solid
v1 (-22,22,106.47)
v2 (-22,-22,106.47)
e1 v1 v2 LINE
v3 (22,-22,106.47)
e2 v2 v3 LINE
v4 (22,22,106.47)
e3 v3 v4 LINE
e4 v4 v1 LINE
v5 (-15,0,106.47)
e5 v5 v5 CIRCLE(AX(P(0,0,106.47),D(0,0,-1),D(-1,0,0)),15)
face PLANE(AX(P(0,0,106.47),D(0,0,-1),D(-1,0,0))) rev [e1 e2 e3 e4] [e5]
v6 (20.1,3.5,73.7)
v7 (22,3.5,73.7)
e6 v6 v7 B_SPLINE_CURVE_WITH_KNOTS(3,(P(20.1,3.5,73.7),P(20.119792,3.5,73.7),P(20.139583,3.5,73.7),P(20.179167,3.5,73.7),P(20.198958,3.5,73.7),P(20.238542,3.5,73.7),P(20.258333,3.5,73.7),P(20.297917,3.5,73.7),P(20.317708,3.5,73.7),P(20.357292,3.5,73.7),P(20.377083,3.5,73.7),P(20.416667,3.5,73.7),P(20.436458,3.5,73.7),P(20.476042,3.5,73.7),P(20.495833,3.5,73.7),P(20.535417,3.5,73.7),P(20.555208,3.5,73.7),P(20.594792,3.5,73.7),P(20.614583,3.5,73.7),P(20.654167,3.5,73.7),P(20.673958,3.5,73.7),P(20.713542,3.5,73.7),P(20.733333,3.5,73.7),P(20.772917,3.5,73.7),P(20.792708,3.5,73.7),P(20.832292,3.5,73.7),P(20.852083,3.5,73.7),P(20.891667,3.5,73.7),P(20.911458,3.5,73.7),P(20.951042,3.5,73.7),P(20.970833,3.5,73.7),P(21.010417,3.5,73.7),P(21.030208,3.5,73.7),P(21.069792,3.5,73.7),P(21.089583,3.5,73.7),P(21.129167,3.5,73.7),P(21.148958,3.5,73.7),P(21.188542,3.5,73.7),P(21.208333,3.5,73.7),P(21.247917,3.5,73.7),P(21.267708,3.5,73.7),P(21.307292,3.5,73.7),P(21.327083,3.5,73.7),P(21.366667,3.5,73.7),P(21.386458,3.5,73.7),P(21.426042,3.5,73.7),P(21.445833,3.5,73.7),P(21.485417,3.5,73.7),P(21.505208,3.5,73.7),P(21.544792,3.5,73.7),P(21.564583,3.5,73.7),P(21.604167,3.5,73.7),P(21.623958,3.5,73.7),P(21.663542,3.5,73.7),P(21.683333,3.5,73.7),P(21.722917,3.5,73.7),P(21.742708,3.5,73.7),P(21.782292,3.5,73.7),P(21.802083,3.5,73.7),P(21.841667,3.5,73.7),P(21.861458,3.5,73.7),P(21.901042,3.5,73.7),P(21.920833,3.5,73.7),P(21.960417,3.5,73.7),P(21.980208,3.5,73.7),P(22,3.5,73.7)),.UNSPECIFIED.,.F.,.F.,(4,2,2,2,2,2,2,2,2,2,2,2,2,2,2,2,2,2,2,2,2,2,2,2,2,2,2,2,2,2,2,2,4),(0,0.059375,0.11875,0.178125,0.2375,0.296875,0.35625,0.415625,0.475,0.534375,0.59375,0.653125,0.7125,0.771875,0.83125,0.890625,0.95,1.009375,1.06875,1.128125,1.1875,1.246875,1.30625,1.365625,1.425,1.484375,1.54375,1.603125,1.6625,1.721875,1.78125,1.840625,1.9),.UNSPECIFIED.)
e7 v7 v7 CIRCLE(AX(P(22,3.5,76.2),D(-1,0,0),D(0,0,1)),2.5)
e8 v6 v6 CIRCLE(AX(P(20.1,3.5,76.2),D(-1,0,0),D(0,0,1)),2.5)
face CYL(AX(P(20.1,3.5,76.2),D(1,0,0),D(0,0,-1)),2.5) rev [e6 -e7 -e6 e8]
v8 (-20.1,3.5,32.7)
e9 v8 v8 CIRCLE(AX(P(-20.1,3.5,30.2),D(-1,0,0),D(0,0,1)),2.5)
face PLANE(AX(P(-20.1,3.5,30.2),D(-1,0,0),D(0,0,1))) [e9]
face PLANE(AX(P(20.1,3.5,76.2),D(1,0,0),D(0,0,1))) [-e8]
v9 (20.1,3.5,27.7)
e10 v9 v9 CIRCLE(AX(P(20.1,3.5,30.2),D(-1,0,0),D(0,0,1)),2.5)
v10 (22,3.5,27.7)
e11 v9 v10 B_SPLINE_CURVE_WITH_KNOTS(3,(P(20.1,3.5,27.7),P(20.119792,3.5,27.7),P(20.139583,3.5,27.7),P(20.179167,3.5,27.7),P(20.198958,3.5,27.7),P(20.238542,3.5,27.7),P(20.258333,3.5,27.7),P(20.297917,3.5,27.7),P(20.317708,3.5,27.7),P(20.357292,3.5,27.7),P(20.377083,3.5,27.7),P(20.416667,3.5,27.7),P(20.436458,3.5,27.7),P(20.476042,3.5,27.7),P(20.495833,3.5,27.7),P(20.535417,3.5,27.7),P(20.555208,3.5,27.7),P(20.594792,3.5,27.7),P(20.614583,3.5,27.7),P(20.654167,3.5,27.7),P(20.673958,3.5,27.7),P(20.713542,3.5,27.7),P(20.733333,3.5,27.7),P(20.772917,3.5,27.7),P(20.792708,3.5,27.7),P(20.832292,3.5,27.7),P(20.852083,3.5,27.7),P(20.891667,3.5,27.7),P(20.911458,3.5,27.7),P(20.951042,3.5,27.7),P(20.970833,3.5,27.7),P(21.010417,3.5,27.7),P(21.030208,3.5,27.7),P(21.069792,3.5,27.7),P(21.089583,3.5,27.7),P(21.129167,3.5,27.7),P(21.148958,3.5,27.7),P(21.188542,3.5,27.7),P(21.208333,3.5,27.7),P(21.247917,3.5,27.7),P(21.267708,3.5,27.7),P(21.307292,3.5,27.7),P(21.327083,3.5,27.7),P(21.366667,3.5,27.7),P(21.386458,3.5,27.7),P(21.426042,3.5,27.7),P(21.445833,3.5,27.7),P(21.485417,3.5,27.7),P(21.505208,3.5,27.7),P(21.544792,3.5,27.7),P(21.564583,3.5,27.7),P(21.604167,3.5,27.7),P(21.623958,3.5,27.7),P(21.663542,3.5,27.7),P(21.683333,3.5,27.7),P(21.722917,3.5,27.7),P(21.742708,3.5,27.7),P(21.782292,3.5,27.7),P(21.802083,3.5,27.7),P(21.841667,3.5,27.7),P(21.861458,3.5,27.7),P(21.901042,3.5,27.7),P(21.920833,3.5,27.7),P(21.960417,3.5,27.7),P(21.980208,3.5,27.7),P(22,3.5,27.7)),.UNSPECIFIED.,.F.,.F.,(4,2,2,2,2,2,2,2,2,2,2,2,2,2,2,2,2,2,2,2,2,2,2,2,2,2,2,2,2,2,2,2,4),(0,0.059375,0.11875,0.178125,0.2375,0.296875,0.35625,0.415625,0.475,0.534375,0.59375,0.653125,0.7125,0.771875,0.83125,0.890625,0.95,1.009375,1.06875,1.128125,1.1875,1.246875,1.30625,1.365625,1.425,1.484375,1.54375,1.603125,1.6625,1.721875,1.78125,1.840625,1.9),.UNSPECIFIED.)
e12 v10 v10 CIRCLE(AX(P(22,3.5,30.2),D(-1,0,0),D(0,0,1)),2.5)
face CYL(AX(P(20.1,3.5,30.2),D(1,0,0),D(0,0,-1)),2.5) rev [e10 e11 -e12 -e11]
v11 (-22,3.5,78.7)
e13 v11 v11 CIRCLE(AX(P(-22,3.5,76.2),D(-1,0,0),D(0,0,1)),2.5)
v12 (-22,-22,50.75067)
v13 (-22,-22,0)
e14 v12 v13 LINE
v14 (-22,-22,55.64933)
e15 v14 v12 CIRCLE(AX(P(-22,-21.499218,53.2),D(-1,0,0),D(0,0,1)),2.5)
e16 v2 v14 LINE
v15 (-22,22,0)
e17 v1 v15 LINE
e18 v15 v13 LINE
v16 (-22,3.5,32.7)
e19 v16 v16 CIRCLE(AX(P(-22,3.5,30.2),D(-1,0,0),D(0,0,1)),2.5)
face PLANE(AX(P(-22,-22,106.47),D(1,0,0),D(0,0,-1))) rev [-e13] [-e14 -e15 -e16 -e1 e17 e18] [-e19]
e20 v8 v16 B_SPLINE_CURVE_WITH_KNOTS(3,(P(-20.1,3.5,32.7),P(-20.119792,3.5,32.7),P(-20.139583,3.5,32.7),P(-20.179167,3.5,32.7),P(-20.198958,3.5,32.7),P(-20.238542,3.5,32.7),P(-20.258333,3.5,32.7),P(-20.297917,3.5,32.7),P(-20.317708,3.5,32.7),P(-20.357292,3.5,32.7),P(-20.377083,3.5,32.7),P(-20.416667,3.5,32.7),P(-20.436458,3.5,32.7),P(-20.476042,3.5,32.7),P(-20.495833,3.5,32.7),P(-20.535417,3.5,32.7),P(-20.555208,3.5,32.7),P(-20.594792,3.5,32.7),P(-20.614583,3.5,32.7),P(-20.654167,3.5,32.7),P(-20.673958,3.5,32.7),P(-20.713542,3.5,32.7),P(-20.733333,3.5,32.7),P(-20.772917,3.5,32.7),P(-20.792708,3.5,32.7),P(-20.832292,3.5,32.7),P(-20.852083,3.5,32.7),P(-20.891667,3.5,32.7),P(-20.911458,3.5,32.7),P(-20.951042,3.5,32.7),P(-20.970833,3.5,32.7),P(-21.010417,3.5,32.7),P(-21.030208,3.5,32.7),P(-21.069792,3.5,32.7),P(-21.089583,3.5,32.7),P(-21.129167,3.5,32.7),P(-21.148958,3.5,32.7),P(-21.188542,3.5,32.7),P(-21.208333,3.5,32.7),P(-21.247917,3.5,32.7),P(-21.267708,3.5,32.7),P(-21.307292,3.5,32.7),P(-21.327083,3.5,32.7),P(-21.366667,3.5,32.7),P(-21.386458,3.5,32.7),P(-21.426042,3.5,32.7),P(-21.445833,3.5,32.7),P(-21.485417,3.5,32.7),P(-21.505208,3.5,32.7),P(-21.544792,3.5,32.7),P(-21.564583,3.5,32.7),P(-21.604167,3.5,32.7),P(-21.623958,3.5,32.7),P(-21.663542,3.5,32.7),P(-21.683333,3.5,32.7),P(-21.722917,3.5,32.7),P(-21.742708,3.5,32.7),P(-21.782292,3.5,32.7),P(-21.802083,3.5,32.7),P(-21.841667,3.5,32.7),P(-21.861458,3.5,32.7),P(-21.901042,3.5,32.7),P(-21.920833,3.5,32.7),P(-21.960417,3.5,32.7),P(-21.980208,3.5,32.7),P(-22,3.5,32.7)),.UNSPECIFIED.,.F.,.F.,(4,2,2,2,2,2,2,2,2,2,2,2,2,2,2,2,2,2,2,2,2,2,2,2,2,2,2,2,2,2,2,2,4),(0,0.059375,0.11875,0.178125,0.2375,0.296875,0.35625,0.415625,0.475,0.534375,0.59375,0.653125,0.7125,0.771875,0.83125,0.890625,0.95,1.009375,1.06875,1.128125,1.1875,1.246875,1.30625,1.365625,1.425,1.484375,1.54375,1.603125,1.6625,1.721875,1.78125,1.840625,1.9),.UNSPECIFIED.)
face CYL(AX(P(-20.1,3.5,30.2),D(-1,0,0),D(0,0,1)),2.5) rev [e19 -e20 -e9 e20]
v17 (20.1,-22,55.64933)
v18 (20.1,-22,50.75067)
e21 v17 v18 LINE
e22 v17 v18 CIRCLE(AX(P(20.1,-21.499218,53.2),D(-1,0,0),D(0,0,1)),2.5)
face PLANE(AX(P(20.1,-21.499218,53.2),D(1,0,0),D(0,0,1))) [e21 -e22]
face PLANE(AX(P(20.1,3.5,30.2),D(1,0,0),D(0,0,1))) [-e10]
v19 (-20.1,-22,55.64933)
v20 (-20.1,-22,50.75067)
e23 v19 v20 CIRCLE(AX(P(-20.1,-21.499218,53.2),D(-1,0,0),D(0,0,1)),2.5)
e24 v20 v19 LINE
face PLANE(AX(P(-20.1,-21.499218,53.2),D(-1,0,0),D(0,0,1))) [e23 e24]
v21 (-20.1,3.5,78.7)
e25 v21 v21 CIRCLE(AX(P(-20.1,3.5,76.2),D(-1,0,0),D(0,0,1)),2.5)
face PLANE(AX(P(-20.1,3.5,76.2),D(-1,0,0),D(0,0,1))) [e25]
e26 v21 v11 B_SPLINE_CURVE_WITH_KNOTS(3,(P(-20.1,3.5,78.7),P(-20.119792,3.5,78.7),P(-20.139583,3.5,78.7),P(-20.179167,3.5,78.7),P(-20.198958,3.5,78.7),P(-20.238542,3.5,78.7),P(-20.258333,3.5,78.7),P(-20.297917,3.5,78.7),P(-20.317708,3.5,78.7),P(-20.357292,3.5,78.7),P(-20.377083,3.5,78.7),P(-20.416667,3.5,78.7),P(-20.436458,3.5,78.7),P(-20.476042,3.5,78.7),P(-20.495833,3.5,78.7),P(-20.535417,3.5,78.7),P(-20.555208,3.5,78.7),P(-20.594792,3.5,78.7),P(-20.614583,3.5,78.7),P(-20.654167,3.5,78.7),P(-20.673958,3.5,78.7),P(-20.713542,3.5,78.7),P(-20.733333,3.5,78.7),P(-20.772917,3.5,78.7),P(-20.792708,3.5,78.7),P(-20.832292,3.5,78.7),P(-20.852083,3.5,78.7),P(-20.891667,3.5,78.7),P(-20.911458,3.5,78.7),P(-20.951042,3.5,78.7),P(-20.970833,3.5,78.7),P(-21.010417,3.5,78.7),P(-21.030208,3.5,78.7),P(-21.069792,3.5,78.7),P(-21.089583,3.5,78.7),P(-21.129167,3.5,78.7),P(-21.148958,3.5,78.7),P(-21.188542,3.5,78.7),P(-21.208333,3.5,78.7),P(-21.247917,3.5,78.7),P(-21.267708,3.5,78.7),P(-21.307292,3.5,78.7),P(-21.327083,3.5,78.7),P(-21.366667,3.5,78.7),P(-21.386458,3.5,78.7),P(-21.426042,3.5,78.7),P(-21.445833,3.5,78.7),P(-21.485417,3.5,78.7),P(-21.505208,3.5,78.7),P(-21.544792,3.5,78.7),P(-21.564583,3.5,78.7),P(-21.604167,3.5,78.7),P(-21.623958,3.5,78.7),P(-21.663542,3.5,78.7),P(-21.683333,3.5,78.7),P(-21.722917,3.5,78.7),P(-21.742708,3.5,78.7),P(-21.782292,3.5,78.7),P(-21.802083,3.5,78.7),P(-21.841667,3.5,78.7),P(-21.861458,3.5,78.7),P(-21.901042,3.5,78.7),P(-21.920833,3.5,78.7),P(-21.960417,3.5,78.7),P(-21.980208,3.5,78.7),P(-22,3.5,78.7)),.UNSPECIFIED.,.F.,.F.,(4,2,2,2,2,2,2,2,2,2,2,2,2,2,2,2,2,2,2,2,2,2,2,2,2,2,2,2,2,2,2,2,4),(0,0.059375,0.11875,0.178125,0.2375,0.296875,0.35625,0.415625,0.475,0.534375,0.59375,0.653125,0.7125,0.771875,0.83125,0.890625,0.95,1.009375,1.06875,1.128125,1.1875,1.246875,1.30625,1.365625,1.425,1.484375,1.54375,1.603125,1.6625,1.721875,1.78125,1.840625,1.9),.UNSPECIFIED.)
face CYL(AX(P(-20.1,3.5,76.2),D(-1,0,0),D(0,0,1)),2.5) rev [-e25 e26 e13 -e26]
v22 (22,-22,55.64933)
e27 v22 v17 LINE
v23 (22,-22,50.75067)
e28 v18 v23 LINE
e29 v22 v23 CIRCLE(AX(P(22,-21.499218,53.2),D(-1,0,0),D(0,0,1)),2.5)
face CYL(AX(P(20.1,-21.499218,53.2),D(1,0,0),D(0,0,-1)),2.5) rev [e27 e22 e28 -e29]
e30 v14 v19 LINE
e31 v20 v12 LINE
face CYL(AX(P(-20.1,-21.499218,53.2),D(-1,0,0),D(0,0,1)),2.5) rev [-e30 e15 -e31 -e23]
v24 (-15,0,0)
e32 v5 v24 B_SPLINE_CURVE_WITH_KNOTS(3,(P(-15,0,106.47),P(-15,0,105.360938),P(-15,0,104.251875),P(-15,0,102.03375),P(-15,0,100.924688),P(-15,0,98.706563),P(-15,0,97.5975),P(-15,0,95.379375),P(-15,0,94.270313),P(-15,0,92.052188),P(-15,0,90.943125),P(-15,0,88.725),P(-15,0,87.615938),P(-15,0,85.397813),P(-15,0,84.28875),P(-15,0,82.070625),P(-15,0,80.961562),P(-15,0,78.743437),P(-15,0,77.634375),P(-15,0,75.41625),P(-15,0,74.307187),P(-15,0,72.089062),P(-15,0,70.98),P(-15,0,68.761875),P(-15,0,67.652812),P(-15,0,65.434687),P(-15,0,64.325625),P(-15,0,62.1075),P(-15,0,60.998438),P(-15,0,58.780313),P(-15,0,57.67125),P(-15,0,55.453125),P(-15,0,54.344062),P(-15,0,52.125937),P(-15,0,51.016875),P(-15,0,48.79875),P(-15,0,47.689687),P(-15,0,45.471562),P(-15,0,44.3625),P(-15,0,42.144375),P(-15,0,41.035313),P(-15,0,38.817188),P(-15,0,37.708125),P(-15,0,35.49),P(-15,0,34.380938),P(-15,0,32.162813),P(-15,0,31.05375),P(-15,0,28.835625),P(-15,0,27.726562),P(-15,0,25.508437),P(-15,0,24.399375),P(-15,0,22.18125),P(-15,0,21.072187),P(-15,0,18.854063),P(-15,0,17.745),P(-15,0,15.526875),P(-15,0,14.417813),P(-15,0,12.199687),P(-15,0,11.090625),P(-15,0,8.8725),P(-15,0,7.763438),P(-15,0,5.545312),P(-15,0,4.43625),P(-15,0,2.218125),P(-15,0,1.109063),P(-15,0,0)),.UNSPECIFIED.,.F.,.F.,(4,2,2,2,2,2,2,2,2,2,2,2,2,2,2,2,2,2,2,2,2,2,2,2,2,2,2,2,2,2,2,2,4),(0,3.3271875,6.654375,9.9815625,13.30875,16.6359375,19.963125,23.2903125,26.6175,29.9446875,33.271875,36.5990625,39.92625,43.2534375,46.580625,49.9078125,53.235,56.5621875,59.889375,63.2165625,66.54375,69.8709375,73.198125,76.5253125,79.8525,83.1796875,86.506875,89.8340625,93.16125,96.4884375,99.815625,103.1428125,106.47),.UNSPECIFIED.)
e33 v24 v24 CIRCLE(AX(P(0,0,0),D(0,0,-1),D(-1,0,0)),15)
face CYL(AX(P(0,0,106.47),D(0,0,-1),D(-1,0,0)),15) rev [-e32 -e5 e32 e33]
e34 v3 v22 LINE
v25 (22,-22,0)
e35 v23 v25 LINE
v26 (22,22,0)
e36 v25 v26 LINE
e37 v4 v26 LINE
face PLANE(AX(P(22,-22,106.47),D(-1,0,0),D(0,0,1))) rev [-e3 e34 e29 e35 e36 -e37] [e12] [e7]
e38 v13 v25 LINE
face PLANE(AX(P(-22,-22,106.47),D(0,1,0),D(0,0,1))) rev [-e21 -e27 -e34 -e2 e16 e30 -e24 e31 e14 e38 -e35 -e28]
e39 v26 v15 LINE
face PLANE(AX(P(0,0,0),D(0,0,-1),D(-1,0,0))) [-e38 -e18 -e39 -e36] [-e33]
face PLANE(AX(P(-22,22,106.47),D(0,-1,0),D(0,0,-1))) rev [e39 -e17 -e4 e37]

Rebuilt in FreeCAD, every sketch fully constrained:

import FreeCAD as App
import Part
import Sketcher

V = App.Vector

doc = App.newDocument("Part")
body = doc.addObject("PartDesign::Body", "Body")

# Sketch on XY plane
sketch1 = body.newObject("Sketcher::SketchObject", "Sketch")
sketch1.AttachmentSupport = (doc.getObject("XY_Plane"), [""])
sketch1.MapMode = "FlatFace"
sketch1.addGeometry([
    Part.LineSegment(V(-22, 22, 0), V(-22, -22, 0)),
    Part.LineSegment(V(-22, -22, 0), V(22, -22, 0)),
    Part.LineSegment(V(22, -22, 0), V(22, 22, 0)),
    Part.LineSegment(V(22, 22, 0), V(-22, 22, 0)),
], False)
sketch1.addConstraint([
    Sketcher.Constraint("Coincident", 0, 2, 1, 1),
    Sketcher.Constraint("Coincident", 1, 2, 2, 1),
    Sketcher.Constraint("Coincident", 2, 2, 3, 1),
    Sketcher.Constraint("Coincident", 3, 2, 0, 1),
    Sketcher.Constraint("Vertical", 0),
    Sketcher.Constraint("Horizontal", 1),
    Sketcher.Constraint("Vertical", 2),
    Sketcher.Constraint("Horizontal", 3),
    Sketcher.Constraint("Symmetric", 0, 2, 2, 2, -1, 1),
    Sketcher.Constraint("Equal", 3, 0),
    Sketcher.Constraint("DistanceX", 1, 1, 1, 2, 44.0),
])
pad1 = body.newObject("PartDesign::Pad", "Pad")
pad1.Profile = sketch1
pad1.Length = 106.47

# Sketch on XY plane
sketch2 = body.newObject("Sketcher::SketchObject", "Sketch001")
sketch2.AttachmentSupport = (doc.getObject("XY_Plane"), [""])
sketch2.MapMode = "FlatFace"
sketch2.addGeometry(Part.Circle(V(0, 0, 0), V(0, 0, 1), 15), False)
sketch2.addConstraint([
    Sketcher.Constraint("Coincident", 0, 3, -1, 1),
    Sketcher.Constraint("Diameter", 0, 30.0),
])
pocket1 = body.newObject("PartDesign::Pocket", "Pocket")
pocket1.Profile = sketch2
pocket1.Length = 106.47
pocket1.Reversed = True

# Sketch on YZ plane
sketch3 = body.newObject("Sketcher::SketchObject", "Sketch002")
sketch3.AttachmentSupport = (doc.getObject("YZ_Plane"), [""])
sketch3.MapMode = "FlatFace"
sketch3.AttachmentOffset = App.Placement(V(0, 0, -22), App.Rotation())
sketch3.addGeometry([
    Part.Circle(V(3.5, 30.2, 0), V(0, 0, 1), 2.5),
    Part.Circle(V(3.5, 76.2, 0), V(0, 0, 1), 2.5),
    Part.Circle(V(-21.5, 53.2, 0), V(0, 0, 1), 2.5),
], False)
sketch3.addConstraint([
    Sketcher.Constraint("Equal", 0, 1),
    Sketcher.Constraint("Equal", 1, 2),
    Sketcher.Constraint("Vertical", 0, 3, 1, 3),
    Sketcher.Constraint("Diameter", 0, 5.0),
    Sketcher.Constraint("DistanceY", 0, 3, 1, 3, 46.0),
    Sketcher.Constraint("DistanceY", 0, 3, 2, 3, 23.0),
    Sketcher.Constraint("DistanceX", -1, 1, 0, 3, 3.5),
    Sketcher.Constraint("DistanceY", -1, 1, 0, 3, 30.2),
    Sketcher.Constraint("DistanceX", 2, 3, -1, 1, 21.499218),
])
pocket2 = body.newObject("PartDesign::Pocket", "Pocket001")
pocket2.Profile = sketch3
pocket2.Length = 1.9
pocket2.Reversed = True
doc.recompute()

mirrored = body.newObject("PartDesign::Mirrored", "Mirrored")
mirrored.Originals = [pocket2]
mirrored.MirrorPlane = (doc.getObject("YZ_Plane"), [""])
body.Tip = mirrored

doc.recompute()
